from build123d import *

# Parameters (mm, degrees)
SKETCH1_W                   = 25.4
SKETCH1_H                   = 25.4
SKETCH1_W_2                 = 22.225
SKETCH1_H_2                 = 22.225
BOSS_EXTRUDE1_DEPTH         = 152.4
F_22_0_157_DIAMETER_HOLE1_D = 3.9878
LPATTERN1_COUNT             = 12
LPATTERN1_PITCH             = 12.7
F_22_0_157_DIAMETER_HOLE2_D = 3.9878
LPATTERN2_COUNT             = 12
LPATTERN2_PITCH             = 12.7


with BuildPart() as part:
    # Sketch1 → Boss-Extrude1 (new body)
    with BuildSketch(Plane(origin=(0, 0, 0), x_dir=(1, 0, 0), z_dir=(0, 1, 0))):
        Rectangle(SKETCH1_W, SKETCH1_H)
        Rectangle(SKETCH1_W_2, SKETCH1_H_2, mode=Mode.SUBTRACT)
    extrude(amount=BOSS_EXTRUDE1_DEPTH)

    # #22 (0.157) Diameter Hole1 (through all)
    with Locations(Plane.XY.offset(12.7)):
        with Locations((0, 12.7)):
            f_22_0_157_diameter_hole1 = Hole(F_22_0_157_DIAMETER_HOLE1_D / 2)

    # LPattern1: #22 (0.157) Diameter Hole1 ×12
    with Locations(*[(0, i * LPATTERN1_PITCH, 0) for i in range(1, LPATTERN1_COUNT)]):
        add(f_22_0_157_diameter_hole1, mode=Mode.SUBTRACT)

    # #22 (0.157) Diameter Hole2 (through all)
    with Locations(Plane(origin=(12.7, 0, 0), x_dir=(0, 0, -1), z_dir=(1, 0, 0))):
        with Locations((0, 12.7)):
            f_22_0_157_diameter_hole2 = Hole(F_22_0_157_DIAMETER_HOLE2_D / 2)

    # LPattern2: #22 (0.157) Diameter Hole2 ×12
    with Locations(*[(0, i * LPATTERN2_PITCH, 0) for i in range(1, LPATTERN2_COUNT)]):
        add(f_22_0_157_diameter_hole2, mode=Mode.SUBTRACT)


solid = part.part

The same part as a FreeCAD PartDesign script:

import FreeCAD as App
import Part
import Sketcher
from FreeCAD import Vector
Q = App.Units.Quantity

doc = App.newDocument("Part")
body = doc.addObject("PartDesign::Body", "Body")

sketch1 = body.newObject("Sketcher::SketchObject", "Sketch")
sketch1.AttachmentSupport = (doc.getObject("XZ_Plane"), [""])
sketch1.MapMode = "FlatFace"
sketch1.addGeometry([
    Part.LineSegment(Vector(-13, -13, 0), Vector(-13, 13, 0)),
    Part.LineSegment(Vector(-13, 13, 0), Vector(13, 13, 0)),
    Part.LineSegment(Vector(13, 13, 0), Vector(13, -13, 0)),
    Part.LineSegment(Vector(13, -13, 0), Vector(-13, -13, 0)),
    Part.LineSegment(Vector(11, 11, 0), Vector(-11, 11, 0)),
    Part.LineSegment(Vector(-11, 11, 0), Vector(-11, -11, 0)),
    Part.LineSegment(Vector(-11, -11, 0), Vector(11, -11, 0)),
    Part.LineSegment(Vector(11, -11, 0), Vector(11, 11, 0)),
], False)
sketch1.addConstraint([
    Sketcher.Constraint("Coincident", 0, 2, 1, 1),
    Sketcher.Constraint("Coincident", 1, 2, 2, 1),
    Sketcher.Constraint("Coincident", 2, 2, 3, 1),
    Sketcher.Constraint("Coincident", 3, 2, 0, 1),
    Sketcher.Constraint("Coincident", 4, 2, 5, 1),
    Sketcher.Constraint("Coincident", 5, 2, 6, 1),
    Sketcher.Constraint("Coincident", 6, 2, 7, 1),
    Sketcher.Constraint("Coincident", 7, 2, 4, 1),
    Sketcher.Constraint("Vertical", 0),
    Sketcher.Constraint("Horizontal", 1),
    Sketcher.Constraint("Vertical", 2),
    Sketcher.Constraint("Horizontal", 3),
    Sketcher.Constraint("Horizontal", 4),
    Sketcher.Constraint("Vertical", 5),
    Sketcher.Constraint("Horizontal", 6),
    Sketcher.Constraint("Vertical", 7),
    Sketcher.Constraint("Symmetric", 0, 2, 2, 2, -1, 1),
    Sketcher.Constraint("Symmetric", 4, 2, 6, 2, -1, 1),
    Sketcher.Constraint("Equal", 3, 0),
    Sketcher.Constraint("Equal", 6, 5),
    Sketcher.Constraint("DistanceX", 1, 1, 1, 2, Q("1 in")),
    Sketcher.Constraint("DistanceX", 4, 2, 4, 1, Q("0.875 in")),
])
pad1 = body.newObject("PartDesign::Pad", "Pad")
pad1.Profile = sketch1
pad1.Length = Q("6 in")
pad1.Reversed = True

sketch2 = body.newObject("Sketcher::SketchObject", "Sketch001")
sketch2.AttachmentSupport = (doc.getObject("XY_Plane"), [""])
sketch2.MapMode = "FlatFace"
sketch2.AttachmentOffset = App.Placement(Vector(0, 0, 0.5 * 25.4), App.Rotation())
sketch2.addGeometry(Part.Circle(Vector(0, 12.7, 0), Vector(0, 0, 1), 2), False)
sketch2.addConstraint([
    Sketcher.Constraint("PointOnObject", 0, 3, -2),
    Sketcher.Constraint("Diameter", 0, Q("0.157 in")),
    Sketcher.Constraint("DistanceY", -1, 1, 0, 3, Q("0.5 in")),
])
doc.recompute()
hole = body.newObject("PartDesign::Hole", "Hole")
hole.Profile = sketch2
hole.ThreadType = "None"
hole.Diameter = Q("0.157 in")
hole.DepthType = "ThroughAll"
doc.recompute()

linearpattern = body.newObject("PartDesign::LinearPattern", "LinearPattern")
linearpattern.Originals = [hole]
linearpattern.Direction = (doc.getObject("Y_Axis"), [""])
linearpattern.Mode = "offset"
linearpattern.Offset = Q("0.5 in")
linearpattern.Occurrences = 12
body.Tip = linearpattern

sketch3 = body.newObject("Sketcher::SketchObject", "Sketch002")
sketch3.AttachmentSupport = (doc.getObject("YZ_Plane"), [""])
sketch3.MapMode = "FlatFace"
sketch3.AttachmentOffset = App.Placement(Vector(0, 0, 0.5 * 25.4), App.Rotation())
sketch3.addGeometry(Part.Circle(Vector(12.7, 0, 0), Vector(0, 0, 1), 2), False)
sketch3.addConstraint([
    Sketcher.Constraint("PointOnObject", 0, 3, -1),
    Sketcher.Constraint("Diameter", 0, Q("0.157 in")),
    Sketcher.Constraint("DistanceX", -1, 1, 0, 3, Q("0.5 in")),
])
doc.recompute()
hole2 = body.newObject("PartDesign::Hole", "Hole001")
hole2.Profile = sketch3
hole2.ThreadType = "None"
hole2.Diameter = Q("0.157 in")
hole2.DepthType = "ThroughAll"
doc.recompute()

linearpattern2 = body.newObject("PartDesign::LinearPattern", "LinearPattern001")
linearpattern2.Originals = [hole2]
linearpattern2.Direction = (doc.getObject("Y_Axis"), [""])
linearpattern2.Mode = "offset"
linearpattern2.Offset = Q("0.5 in")
linearpattern2.Occurrences = 12
body.Tip = linearpattern2

doc.recompute()
